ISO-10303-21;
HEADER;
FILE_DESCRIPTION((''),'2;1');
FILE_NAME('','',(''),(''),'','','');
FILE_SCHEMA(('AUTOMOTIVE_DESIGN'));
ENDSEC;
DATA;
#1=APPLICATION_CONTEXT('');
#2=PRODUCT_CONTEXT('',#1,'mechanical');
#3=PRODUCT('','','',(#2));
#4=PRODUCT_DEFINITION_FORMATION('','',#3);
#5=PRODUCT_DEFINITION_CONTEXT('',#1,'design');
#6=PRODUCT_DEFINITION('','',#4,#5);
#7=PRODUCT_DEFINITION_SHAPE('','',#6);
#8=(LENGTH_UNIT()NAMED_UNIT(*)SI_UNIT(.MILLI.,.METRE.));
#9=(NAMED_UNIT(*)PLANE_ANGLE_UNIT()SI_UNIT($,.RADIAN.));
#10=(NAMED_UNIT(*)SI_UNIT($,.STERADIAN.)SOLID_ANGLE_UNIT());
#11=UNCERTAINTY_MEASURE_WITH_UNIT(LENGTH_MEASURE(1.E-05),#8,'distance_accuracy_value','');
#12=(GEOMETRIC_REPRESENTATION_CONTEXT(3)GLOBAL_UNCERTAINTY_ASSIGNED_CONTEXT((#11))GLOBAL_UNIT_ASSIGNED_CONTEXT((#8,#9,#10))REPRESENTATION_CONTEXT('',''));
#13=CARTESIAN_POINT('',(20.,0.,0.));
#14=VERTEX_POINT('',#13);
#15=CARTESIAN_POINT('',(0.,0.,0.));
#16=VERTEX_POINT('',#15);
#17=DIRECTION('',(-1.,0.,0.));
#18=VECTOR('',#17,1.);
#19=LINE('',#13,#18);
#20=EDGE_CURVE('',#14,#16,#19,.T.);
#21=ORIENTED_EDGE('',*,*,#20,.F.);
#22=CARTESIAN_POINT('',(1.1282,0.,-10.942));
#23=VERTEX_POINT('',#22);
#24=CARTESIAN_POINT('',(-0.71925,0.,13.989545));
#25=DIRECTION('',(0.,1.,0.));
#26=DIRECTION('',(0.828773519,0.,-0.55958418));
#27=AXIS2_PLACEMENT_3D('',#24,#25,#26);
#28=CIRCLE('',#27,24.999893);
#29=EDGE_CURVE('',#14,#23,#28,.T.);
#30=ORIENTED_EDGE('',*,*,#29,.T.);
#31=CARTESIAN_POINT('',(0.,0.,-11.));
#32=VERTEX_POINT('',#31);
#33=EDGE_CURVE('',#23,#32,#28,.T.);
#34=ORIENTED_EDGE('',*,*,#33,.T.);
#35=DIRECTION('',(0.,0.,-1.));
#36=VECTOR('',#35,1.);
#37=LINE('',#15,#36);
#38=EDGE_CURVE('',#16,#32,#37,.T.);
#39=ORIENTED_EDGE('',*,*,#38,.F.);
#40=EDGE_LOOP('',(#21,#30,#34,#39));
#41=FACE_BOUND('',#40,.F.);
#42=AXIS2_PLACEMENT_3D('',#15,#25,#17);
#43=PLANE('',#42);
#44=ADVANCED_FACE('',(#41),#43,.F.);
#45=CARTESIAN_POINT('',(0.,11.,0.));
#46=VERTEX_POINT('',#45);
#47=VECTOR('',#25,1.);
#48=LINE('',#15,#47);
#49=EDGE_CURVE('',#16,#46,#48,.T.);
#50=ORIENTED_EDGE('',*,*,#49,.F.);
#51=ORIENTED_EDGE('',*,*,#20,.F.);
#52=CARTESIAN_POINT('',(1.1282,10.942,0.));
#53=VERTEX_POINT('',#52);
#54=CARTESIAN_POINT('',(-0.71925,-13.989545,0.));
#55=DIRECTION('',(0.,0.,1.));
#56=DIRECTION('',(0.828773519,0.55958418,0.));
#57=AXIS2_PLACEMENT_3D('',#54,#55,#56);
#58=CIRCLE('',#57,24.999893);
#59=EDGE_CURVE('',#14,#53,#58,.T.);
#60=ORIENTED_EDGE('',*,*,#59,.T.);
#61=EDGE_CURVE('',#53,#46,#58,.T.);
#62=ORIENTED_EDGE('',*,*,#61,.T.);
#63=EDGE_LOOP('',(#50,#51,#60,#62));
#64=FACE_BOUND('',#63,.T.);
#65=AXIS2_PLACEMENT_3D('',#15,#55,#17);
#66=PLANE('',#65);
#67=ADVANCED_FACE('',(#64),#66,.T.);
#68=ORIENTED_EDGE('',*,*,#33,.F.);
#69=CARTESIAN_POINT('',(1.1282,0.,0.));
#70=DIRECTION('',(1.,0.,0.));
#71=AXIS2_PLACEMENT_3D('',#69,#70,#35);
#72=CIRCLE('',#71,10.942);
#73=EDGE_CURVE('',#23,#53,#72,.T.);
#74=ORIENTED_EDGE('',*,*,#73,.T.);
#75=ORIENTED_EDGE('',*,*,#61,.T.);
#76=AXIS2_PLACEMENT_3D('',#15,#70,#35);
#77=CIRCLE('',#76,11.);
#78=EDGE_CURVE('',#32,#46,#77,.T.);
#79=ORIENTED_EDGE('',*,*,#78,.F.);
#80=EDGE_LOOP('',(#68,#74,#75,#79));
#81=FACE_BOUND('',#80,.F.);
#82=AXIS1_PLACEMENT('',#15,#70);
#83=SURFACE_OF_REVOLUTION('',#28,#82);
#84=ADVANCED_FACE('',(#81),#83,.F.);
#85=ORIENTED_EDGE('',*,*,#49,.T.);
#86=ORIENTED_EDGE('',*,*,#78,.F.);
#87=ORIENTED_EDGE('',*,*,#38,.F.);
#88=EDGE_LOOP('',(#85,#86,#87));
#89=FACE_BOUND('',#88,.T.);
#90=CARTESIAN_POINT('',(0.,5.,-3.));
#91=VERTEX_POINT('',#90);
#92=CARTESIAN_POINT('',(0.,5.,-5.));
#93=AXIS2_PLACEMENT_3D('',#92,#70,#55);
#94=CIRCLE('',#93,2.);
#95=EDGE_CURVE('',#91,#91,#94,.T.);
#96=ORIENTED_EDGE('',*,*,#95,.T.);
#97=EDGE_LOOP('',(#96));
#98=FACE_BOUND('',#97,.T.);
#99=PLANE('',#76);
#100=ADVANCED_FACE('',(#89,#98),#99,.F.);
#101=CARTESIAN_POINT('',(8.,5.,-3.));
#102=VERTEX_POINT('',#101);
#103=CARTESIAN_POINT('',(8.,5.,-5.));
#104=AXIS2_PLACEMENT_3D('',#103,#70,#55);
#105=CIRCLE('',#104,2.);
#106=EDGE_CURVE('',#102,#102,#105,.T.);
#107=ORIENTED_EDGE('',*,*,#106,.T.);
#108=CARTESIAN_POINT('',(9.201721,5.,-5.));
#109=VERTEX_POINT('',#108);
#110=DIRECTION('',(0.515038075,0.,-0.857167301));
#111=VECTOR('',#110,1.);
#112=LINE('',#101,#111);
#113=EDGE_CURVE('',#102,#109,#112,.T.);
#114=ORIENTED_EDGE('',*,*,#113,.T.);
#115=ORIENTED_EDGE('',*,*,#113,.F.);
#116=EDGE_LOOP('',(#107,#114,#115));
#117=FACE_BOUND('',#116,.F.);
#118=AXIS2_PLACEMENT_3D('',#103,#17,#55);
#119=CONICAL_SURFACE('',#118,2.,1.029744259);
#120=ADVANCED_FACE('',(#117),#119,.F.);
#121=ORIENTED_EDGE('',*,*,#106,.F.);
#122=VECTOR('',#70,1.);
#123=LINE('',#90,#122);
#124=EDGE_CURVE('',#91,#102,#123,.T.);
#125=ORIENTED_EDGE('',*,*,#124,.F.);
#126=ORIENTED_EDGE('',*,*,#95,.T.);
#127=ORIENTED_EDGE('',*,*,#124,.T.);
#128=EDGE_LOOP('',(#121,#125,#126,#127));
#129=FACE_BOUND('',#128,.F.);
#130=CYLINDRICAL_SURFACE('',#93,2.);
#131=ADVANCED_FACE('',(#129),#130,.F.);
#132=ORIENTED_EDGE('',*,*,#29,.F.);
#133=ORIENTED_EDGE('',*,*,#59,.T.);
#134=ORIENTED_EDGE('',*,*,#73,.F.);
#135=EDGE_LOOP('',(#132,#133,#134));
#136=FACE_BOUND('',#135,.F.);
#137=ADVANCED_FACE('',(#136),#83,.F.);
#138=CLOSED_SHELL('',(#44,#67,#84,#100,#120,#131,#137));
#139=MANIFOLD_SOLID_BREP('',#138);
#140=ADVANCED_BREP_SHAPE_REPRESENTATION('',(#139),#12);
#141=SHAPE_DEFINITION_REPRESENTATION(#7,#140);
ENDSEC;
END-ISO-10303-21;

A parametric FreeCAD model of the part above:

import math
import FreeCAD as App
import Part
import Sketcher
from FreeCAD import Vector
Q = App.Units.Quantity

doc = App.newDocument("Part")
body = doc.addObject("PartDesign::Body", "Body")

sketch1 = doc.addObject("Sketcher::SketchObject", "Sketch")
body.addObject(sketch1)
sketch1.AttachmentSupport = (doc.XZ_Plane, [""])
sketch1.MapMode = "FlatFace"
sketch1.addGeometry(Part.ArcOfCircle(Part.Circle(Vector(-0.7193, 13.9896, 0), Vector(0, 0, 1), 24.999966), math.radians(-88.351255), math.radians(-34.027086)), False)
sketch1.addGeometry(Part.LineSegment(Vector(0, -11, 0), Vector(0, 0, 0)), False)
sketch1.addGeometry(Part.LineSegment(Vector(0, 0, 0), Vector(20, 0, 0)), False)
sketch1.addConstraint(Sketcher.Constraint("Coincident", 0, 1, 1, 1))
sketch1.addConstraint(Sketcher.Constraint("Coincident", 1, 2, 2, 1))
sketch1.addConstraint(Sketcher.Constraint("Coincident", 2, 2, 0, 2))
sketch1.addConstraint(Sketcher.Constraint("Vertical", 1))
sketch1.addConstraint(Sketcher.Constraint("Horizontal", 2))
sketch1.addConstraint(Sketcher.Constraint("Coincident", 1, 2, -1, 1))
sketch1.addConstraint(Sketcher.Constraint("Radius", 0, Q("25 mm")))
sketch1.addConstraint(Sketcher.Constraint("DistanceX", 2, 1, 2, 2, Q("20 mm")))
sketch1.addConstraint(Sketcher.Constraint("DistanceY", 1, 1, 1, 2, Q("11 mm")))
revolution = doc.addObject("PartDesign::Revolution", "Revolution")
body.addObject(revolution)
revolution.Profile = sketch1
revolution.ReferenceAxis = (sketch1, ["H_Axis"])
revolution.Angle = 90

sketch2 = doc.addObject("Sketcher::SketchObject", "Sketch001")
body.addObject(sketch2)
sketch2.AttachmentSupport = (doc.YZ_Plane, [""])
sketch2.MapMode = "FlatFace"
sketch2.addGeometry(Part.Circle(Vector(5, -5, 0), Vector(0, 0, 1), 2), False)
sketch2.addConstraint(Sketcher.Constraint("Diameter", 0, Q("4 mm")))
sketch2.addConstraint(Sketcher.Constraint("DistanceX", -1, 1, 0, 3, Q("5 mm")))
sketch2.addConstraint(Sketcher.Constraint("DistanceY", 0, 3, -1, 1, Q("5 mm")))
doc.recompute()
hole = doc.addObject("PartDesign::Hole", "Hole")
body.addObject(hole)
hole.Profile = sketch2
hole.ThreadType = "None"
hole.Diameter = 4
hole.DepthType = "Dimension"
hole.Depth = 8
hole.DrillPoint = "Angled"
hole.DrillPointAngle = 118
hole.Reversed = True

doc.recompute()
